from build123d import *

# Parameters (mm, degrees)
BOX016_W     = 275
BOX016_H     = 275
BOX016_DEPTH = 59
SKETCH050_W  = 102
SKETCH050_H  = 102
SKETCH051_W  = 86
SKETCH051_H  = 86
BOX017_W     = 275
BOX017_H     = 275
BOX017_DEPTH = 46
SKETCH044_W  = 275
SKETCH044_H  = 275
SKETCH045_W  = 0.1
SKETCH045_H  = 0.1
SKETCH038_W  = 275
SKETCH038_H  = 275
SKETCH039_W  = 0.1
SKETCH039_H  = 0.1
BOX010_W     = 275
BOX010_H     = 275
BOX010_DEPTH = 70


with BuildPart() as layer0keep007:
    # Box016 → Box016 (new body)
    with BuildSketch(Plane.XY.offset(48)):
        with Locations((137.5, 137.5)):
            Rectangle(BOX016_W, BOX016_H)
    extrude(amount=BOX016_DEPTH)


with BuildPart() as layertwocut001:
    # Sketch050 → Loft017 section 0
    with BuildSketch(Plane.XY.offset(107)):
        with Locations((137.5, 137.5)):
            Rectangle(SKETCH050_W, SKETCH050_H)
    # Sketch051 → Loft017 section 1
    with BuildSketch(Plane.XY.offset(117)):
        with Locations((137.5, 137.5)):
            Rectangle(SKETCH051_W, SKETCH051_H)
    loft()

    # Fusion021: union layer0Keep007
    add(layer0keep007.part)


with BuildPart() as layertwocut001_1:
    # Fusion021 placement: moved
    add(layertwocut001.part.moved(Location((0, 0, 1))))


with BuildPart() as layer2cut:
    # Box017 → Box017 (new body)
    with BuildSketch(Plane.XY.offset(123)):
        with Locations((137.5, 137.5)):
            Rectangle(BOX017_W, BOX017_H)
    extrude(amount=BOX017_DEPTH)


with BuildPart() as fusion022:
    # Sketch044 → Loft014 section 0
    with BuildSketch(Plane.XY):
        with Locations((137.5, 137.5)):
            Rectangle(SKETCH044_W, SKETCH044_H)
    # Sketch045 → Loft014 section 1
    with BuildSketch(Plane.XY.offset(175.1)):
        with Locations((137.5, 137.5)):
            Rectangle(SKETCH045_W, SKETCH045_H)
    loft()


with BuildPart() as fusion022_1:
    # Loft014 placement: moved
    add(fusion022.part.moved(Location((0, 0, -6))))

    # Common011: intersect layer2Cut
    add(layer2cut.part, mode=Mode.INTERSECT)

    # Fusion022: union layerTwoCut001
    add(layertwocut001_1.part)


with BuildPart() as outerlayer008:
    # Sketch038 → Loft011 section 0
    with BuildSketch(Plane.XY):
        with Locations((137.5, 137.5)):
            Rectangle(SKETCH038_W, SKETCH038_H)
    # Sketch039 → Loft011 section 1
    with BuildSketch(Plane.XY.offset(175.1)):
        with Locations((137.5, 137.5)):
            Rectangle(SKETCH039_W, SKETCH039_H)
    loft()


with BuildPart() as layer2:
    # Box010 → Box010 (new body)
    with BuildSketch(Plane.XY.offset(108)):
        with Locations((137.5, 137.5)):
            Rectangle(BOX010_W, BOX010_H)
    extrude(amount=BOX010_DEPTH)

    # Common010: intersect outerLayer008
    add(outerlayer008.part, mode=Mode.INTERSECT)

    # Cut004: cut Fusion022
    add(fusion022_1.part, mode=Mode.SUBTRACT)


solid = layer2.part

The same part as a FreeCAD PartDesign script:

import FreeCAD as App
import Part
import Sketcher

V = App.Vector

doc = App.newDocument("Part")
body = doc.addObject("PartDesign::Body", "Body")

# Sketch on XY plane
sketch1 = body.newObject("Sketcher::SketchObject", "Sketch")
sketch1.AttachmentSupport = (doc.getObject("XY_Plane"), [""])
sketch1.MapMode = "FlatFace"
sketch1.AttachmentOffset = App.Placement(V(0, 0, 48), App.Rotation())
sketch1.addGeometry([
    Part.LineSegment(V(0, 275, 0), V(0, 0, 0)),
    Part.LineSegment(V(0, 0, 0), V(275, 0, 0)),
    Part.LineSegment(V(275, 0, 0), V(275, 275, 0)),
    Part.LineSegment(V(275, 275, 0), V(0, 275, 0)),
], False)
sketch1.addConstraint([
    Sketcher.Constraint("Coincident", 0, 2, 1, 1),
    Sketcher.Constraint("Coincident", 1, 2, 2, 1),
    Sketcher.Constraint("Coincident", 2, 2, 3, 1),
    Sketcher.Constraint("Coincident", 3, 2, 0, 1),
    Sketcher.Constraint("Vertical", 0),
    Sketcher.Constraint("Horizontal", 1),
    Sketcher.Constraint("Vertical", 2),
    Sketcher.Constraint("Horizontal", 3),
    Sketcher.Constraint("Coincident", 0, 2, -1, 1),
    Sketcher.Constraint("Equal", 3, 0),
    Sketcher.Constraint("DistanceX", 1, 1, 1, 2, 275.0),
])
pad1 = body.newObject("PartDesign::Pad", "Pad")
pad1.Profile = sketch1
pad1.Length = 59
body2 = doc.addObject("PartDesign::Body", "Body001")

# Sketch on XY plane
sketch2 = body2.newObject("Sketcher::SketchObject", "Sketch001")
sketch2.AttachmentSupport = (doc.getObject("XY_Plane001"), [""])
sketch2.MapMode = "FlatFace"
sketch2.AttachmentOffset = App.Placement(V(0, 0, 107), App.Rotation())
sketch2.addGeometry([
    Part.LineSegment(V(86, 188, 0), V(86, 86, 0)),
    Part.LineSegment(V(86, 86, 0), V(188, 86, 0)),
    Part.LineSegment(V(188, 86, 0), V(188, 188, 0)),
    Part.LineSegment(V(188, 188, 0), V(86, 188, 0)),
], False)
sketch2.addConstraint([
    Sketcher.Constraint("Coincident", 0, 2, 1, 1),
    Sketcher.Constraint("Coincident", 1, 2, 2, 1),
    Sketcher.Constraint("Coincident", 2, 2, 3, 1),
    Sketcher.Constraint("Coincident", 3, 2, 0, 1),
    Sketcher.Constraint("Vertical", 0),
    Sketcher.Constraint("Horizontal", 1),
    Sketcher.Constraint("Vertical", 2),
    Sketcher.Constraint("Horizontal", 3),
    Sketcher.Constraint("Equal", 3, 0),
    Sketcher.Constraint("DistanceX", 1, 1, 1, 2, 102.0),
    Sketcher.Constraint("DistanceX", -1, 1, 0, 2, 86.5),
    Sketcher.Constraint("DistanceY", -1, 1, 0, 2, 86.5),
])

# Sketch on XY plane
sketch3 = body2.newObject("Sketcher::SketchObject", "Sketch002")
sketch3.AttachmentSupport = (doc.getObject("XY_Plane001"), [""])
sketch3.MapMode = "FlatFace"
sketch3.AttachmentOffset = App.Placement(V(0, 0, 117), App.Rotation())
sketch3.addGeometry([
    Part.LineSegment(V(94, 180, 0), V(94, 94, 0)),
    Part.LineSegment(V(94, 94, 0), V(180, 94, 0)),
    Part.LineSegment(V(180, 94, 0), V(180, 180, 0)),
    Part.LineSegment(V(180, 180, 0), V(94, 180, 0)),
], False)
sketch3.addConstraint([
    Sketcher.Constraint("Coincident", 0, 2, 1, 1),
    Sketcher.Constraint("Coincident", 1, 2, 2, 1),
    Sketcher.Constraint("Coincident", 2, 2, 3, 1),
    Sketcher.Constraint("Coincident", 3, 2, 0, 1),
    Sketcher.Constraint("Vertical", 0),
    Sketcher.Constraint("Horizontal", 1),
    Sketcher.Constraint("Vertical", 2),
    Sketcher.Constraint("Horizontal", 3),
    Sketcher.Constraint("Equal", 3, 0),
    Sketcher.Constraint("DistanceX", 1, 1, 1, 2, 86.0),
    Sketcher.Constraint("DistanceX", -1, 1, 0, 2, 94.5),
    Sketcher.Constraint("DistanceY", -1, 1, 0, 2, 94.5),
])

additiveloft = body2.newObject("PartDesign::AdditiveLoft", "AdditiveLoft")
additiveloft.Profile = sketch2
additiveloft.Sections = [sketch3]
doc.recompute()

boolean = body2.newObject("PartDesign::Boolean", "Boolean")
boolean.Type = "Fuse"
boolean.addObjects([body])
body3 = doc.addObject("PartDesign::Body", "Body002")
doc.recompute()

body2.Placement = App.Placement(V(0, 0, 1), App.Rotation(V(0, 0, 1), 0))
boolean2 = body3.newObject("PartDesign::Boolean", "Boolean001")
boolean2.Type = "Fuse"
boolean2.addObjects([body2])
body4 = doc.addObject("PartDesign::Body", "Body003")

# Sketch on XY plane
sketch4 = body4.newObject("Sketcher::SketchObject", "Sketch003")
sketch4.AttachmentSupport = (doc.getObject("XY_Plane003"), [""])
sketch4.MapMode = "FlatFace"
sketch4.AttachmentOffset = App.Placement(V(0, 0, 123), App.Rotation())
sketch4.addGeometry([
    Part.LineSegment(V(0, 275, 0), V(0, 0, 0)),
    Part.LineSegment(V(0, 0, 0), V(275, 0, 0)),
    Part.LineSegment(V(275, 0, 0), V(275, 275, 0)),
    Part.LineSegment(V(275, 275, 0), V(0, 275, 0)),
], False)
sketch4.addConstraint([
    Sketcher.Constraint("Coincident", 0, 2, 1, 1),
    Sketcher.Constraint("Coincident", 1, 2, 2, 1),
    Sketcher.Constraint("Coincident", 2, 2, 3, 1),
    Sketcher.Constraint("Coincident", 3, 2, 0, 1),
    Sketcher.Constraint("Vertical", 0),
    Sketcher.Constraint("Horizontal", 1),
    Sketcher.Constraint("Vertical", 2),
    Sketcher.Constraint("Horizontal", 3),
    Sketcher.Constraint("Coincident", 0, 2, -1, 1),
    Sketcher.Constraint("Equal", 3, 0),
    Sketcher.Constraint("DistanceX", 1, 1, 1, 2, 275.0),
])
pad2 = body4.newObject("PartDesign::Pad", "Pad001")
pad2.Profile = sketch4
pad2.Length = 46
body5 = doc.addObject("PartDesign::Body", "Body004")

# Sketch on XY plane
sketch5 = body5.newObject("Sketcher::SketchObject", "Sketch004")
sketch5.AttachmentSupport = (doc.getObject("XY_Plane004"), [""])
sketch5.MapMode = "FlatFace"
sketch5.addGeometry([
    Part.LineSegment(V(0, 275, 0), V(0, 0, 0)),
    Part.LineSegment(V(0, 0, 0), V(275, 0, 0)),
    Part.LineSegment(V(275, 0, 0), V(275, 275, 0)),
    Part.LineSegment(V(275, 275, 0), V(0, 275, 0)),
], False)
sketch5.addConstraint([
    Sketcher.Constraint("Coincident", 0, 2, 1, 1),
    Sketcher.Constraint("Coincident", 1, 2, 2, 1),
    Sketcher.Constraint("Coincident", 2, 2, 3, 1),
    Sketcher.Constraint("Coincident", 3, 2, 0, 1),
    Sketcher.Constraint("Vertical", 0),
    Sketcher.Constraint("Horizontal", 1),
    Sketcher.Constraint("Vertical", 2),
    Sketcher.Constraint("Horizontal", 3),
    Sketcher.Constraint("Coincident", 0, 2, -1, 1),
    Sketcher.Constraint("Equal", 3, 0),
    Sketcher.Constraint("DistanceX", 1, 1, 1, 2, 275.0),
])

# Sketch on XY plane
sketch6 = body5.newObject("Sketcher::SketchObject", "Sketch005")
sketch6.AttachmentSupport = (doc.getObject("XY_Plane004"), [""])
sketch6.MapMode = "FlatFace"
sketch6.AttachmentOffset = App.Placement(V(0, 0, 175.1), App.Rotation())
sketch6.addGeometry([
    Part.LineSegment(V(137.45, 137.55, 0), V(137.45, 137.45, 0)),
    Part.LineSegment(V(137.45, 137.45, 0), V(137.55, 137.45, 0)),
    Part.LineSegment(V(137.55, 137.45, 0), V(137.55, 137.55, 0)),
    Part.LineSegment(V(137.55, 137.55, 0), V(137.45, 137.55, 0)),
], False)
sketch6.addConstraint([
    Sketcher.Constraint("Coincident", 0, 2, 1, 1),
    Sketcher.Constraint("Coincident", 1, 2, 2, 1),
    Sketcher.Constraint("Coincident", 2, 2, 3, 1),
    Sketcher.Constraint("Coincident", 3, 2, 0, 1),
    Sketcher.Constraint("Vertical", 0),
    Sketcher.Constraint("Horizontal", 1),
    Sketcher.Constraint("Vertical", 2),
    Sketcher.Constraint("Horizontal", 3),
    Sketcher.Constraint("Equal", 3, 0),
    Sketcher.Constraint("DistanceX", 1, 1, 1, 2, 0.1),
    Sketcher.Constraint("DistanceX", -1, 1, 0, 2, 137.45),
    Sketcher.Constraint("DistanceY", -1, 1, 0, 2, 137.45),
])

additiveloft2 = body5.newObject("PartDesign::AdditiveLoft", "AdditiveLoft001")
additiveloft2.Profile = sketch5
additiveloft2.Sections = [sketch6]
body6 = doc.addObject("PartDesign::Body", "Body005")
body6.AllowCompound = True
doc.recompute()

body5.Placement = App.Placement(V(0, 0, -6), App.Rotation(V(0, 0, 1), 0))
boolean3 = body6.newObject("PartDesign::Boolean", "Boolean002")
boolean3.Type = "Fuse"
boolean3.addObjects([body5])
doc.recompute()

boolean4 = body6.newObject("PartDesign::Boolean", "Boolean003")
boolean4.Type = "Common"
boolean4.addObjects([body4])
doc.recompute()

boolean5 = body6.newObject("PartDesign::Boolean", "Boolean004")
boolean5.Type = "Fuse"
boolean5.addObjects([body3])
body7 = doc.addObject("PartDesign::Body", "Body006")

# Sketch on XY plane
sketch7 = body7.newObject("Sketcher::SketchObject", "Sketch006")
sketch7.AttachmentSupport = (doc.getObject("XY_Plane006"), [""])
sketch7.MapMode = "FlatFace"
sketch7.addGeometry([
    Part.LineSegment(V(0, 275, 0), V(0, 0, 0)),
    Part.LineSegment(V(0, 0, 0), V(275, 0, 0)),
    Part.LineSegment(V(275, 0, 0), V(275, 275, 0)),
    Part.LineSegment(V(275, 275, 0), V(0, 275, 0)),
], False)
sketch7.addConstraint([
    Sketcher.Constraint("Coincident", 0, 2, 1, 1),
    Sketcher.Constraint("Coincident", 1, 2, 2, 1),
    Sketcher.Constraint("Coincident", 2, 2, 3, 1),
    Sketcher.Constraint("Coincident", 3, 2, 0, 1),
    Sketcher.Constraint("Vertical", 0),
    Sketcher.Constraint("Horizontal", 1),
    Sketcher.Constraint("Vertical", 2),
    Sketcher.Constraint("Horizontal", 3),
    Sketcher.Constraint("Coincident", 0, 2, -1, 1),
    Sketcher.Constraint("Equal", 3, 0),
    Sketcher.Constraint("DistanceX", 1, 1, 1, 2, 275.0),
])

# Sketch on XY plane
sketch8 = body7.newObject("Sketcher::SketchObject", "Sketch007")
sketch8.AttachmentSupport = (doc.getObject("XY_Plane006"), [""])
sketch8.MapMode = "FlatFace"
sketch8.AttachmentOffset = App.Placement(V(0, 0, 175.1), App.Rotation())
sketch8.addGeometry([
    Part.LineSegment(V(137.45, 137.55, 0), V(137.45, 137.45, 0)),
    Part.LineSegment(V(137.45, 137.45, 0), V(137.55, 137.45, 0)),
    Part.LineSegment(V(137.55, 137.45, 0), V(137.55, 137.55, 0)),
    Part.LineSegment(V(137.55, 137.55, 0), V(137.45, 137.55, 0)),
], False)
sketch8.addConstraint([
    Sketcher.Constraint("Coincident", 0, 2, 1, 1),
    Sketcher.Constraint("Coincident", 1, 2, 2, 1),
    Sketcher.Constraint("Coincident", 2, 2, 3, 1),
    Sketcher.Constraint("Coincident", 3, 2, 0, 1),
    Sketcher.Constraint("Vertical", 0),
    Sketcher.Constraint("Horizontal", 1),
    Sketcher.Constraint("Vertical", 2),
    Sketcher.Constraint("Horizontal", 3),
    Sketcher.Constraint("Equal", 3, 0),
    Sketcher.Constraint("DistanceX", 1, 1, 1, 2, 0.1),
    Sketcher.Constraint("DistanceX", -1, 1, 0, 2, 137.45),
    Sketcher.Constraint("DistanceY", -1, 1, 0, 2, 137.45),
])

additiveloft3 = body7.newObject("PartDesign::AdditiveLoft", "AdditiveLoft002")
additiveloft3.Profile = sketch7
additiveloft3.Sections = [sketch8]
body8 = doc.addObject("PartDesign::Body", "Body007")

# Sketch on XY plane
sketch9 = body8.newObject("Sketcher::SketchObject", "Sketch008")
sketch9.AttachmentSupport = (doc.getObject("XY_Plane007"), [""])
sketch9.MapMode = "FlatFace"
sketch9.AttachmentOffset = App.Placement(V(0, 0, 108), App.Rotation())
sketch9.addGeometry([
    Part.LineSegment(V(0, 275, 0), V(0, 0, 0)),
    Part.LineSegment(V(0, 0, 0), V(275, 0, 0)),
    Part.LineSegment(V(275, 0, 0), V(275, 275, 0)),
    Part.LineSegment(V(275, 275, 0), V(0, 275, 0)),
], False)
sketch9.addConstraint([
    Sketcher.Constraint("Coincident", 0, 2, 1, 1),
    Sketcher.Constraint("Coincident", 1, 2, 2, 1),
    Sketcher.Constraint("Coincident", 2, 2, 3, 1),
    Sketcher.Constraint("Coincident", 3, 2, 0, 1),
    Sketcher.Constraint("Vertical", 0),
    Sketcher.Constraint("Horizontal", 1),
    Sketcher.Constraint("Vertical", 2),
    Sketcher.Constraint("Horizontal", 3),
    Sketcher.Constraint("Coincident", 0, 2, -1, 1),
    Sketcher.Constraint("Equal", 3, 0),
    Sketcher.Constraint("DistanceX", 1, 1, 1, 2, 275.0),
])
pad3 = body8.newObject("PartDesign::Pad", "Pad002")
pad3.Profile = sketch9
pad3.Length = 70
doc.recompute()

boolean6 = body8.newObject("PartDesign::Boolean", "Boolean005")
boolean6.Type = "Common"
boolean6.addObjects([body7])
doc.recompute()

boolean7 = body8.newObject("PartDesign::Boolean", "Boolean006")
boolean7.Type = "Cut"
boolean7.addObjects([body6])

doc.recompute()
